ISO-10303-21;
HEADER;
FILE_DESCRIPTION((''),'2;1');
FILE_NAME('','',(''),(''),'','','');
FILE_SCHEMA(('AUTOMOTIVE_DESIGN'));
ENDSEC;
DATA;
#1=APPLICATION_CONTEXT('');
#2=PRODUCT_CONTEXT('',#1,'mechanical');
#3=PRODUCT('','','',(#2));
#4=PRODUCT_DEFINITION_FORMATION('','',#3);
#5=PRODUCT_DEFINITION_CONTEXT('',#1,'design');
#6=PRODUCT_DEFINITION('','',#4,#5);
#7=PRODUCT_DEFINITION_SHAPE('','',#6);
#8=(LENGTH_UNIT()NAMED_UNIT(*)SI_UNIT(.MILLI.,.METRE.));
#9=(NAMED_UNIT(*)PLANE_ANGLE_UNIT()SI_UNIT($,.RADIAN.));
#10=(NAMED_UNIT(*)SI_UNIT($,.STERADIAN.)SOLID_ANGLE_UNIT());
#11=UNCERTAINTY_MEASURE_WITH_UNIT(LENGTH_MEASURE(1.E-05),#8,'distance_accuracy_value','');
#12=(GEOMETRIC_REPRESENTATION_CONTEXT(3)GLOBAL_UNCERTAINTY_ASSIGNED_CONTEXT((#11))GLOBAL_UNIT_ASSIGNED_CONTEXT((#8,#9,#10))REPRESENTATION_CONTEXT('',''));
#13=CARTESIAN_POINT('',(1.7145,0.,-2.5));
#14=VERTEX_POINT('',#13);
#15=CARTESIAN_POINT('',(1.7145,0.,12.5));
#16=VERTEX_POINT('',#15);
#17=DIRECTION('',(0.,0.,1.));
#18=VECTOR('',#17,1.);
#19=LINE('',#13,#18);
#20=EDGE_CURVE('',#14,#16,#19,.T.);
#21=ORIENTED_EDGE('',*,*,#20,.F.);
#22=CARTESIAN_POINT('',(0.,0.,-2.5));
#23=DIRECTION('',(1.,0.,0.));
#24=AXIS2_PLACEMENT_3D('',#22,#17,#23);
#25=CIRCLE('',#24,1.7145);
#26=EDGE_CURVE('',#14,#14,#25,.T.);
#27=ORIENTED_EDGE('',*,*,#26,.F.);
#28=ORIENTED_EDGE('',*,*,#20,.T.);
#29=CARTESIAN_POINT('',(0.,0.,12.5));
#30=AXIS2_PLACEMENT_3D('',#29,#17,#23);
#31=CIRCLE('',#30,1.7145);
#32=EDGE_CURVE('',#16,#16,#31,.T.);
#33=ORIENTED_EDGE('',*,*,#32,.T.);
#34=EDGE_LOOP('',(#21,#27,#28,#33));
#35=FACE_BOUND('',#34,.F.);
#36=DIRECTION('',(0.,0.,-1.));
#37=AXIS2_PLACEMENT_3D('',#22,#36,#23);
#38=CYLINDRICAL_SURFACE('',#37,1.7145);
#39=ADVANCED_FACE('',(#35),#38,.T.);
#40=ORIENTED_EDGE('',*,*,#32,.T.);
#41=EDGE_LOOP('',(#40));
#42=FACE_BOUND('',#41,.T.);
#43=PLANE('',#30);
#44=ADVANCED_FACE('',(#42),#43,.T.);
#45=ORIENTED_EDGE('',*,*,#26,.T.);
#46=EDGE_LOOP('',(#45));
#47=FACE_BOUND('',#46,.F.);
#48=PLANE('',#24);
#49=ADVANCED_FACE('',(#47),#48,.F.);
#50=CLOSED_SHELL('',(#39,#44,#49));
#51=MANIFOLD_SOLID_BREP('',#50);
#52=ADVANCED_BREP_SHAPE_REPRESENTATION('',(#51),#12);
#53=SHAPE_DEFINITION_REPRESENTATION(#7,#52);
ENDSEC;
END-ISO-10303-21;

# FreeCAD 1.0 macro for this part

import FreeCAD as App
import Part
import Sketcher

V = App.Vector

doc = App.newDocument("Part")
body = doc.addObject("PartDesign::Body", "Body")

sketch1 = body.newObject("Sketcher::SketchObject", "Sketch")
sketch1.AttachmentSupport = (doc.getObject("XY_Plane"), [""])
sketch1.MapMode = "FlatFace"
sketch1.AttachmentOffset = App.Placement(V(0, 0, -2.5), App.Rotation())
sketch1.addGeometry(Part.Circle(V(0, 0, 0), V(0, 0, 1), 1.7), False)
sketch1.addConstraint([
    Sketcher.Constraint("Coincident", 0, 3, -1, 1),
    Sketcher.Constraint("Diameter", 0, 3.429),
])
pad1 = body.newObject("PartDesign::Pad", "Pad")
pad1.Profile = sketch1
pad1.Length = 15

doc.recompute()
